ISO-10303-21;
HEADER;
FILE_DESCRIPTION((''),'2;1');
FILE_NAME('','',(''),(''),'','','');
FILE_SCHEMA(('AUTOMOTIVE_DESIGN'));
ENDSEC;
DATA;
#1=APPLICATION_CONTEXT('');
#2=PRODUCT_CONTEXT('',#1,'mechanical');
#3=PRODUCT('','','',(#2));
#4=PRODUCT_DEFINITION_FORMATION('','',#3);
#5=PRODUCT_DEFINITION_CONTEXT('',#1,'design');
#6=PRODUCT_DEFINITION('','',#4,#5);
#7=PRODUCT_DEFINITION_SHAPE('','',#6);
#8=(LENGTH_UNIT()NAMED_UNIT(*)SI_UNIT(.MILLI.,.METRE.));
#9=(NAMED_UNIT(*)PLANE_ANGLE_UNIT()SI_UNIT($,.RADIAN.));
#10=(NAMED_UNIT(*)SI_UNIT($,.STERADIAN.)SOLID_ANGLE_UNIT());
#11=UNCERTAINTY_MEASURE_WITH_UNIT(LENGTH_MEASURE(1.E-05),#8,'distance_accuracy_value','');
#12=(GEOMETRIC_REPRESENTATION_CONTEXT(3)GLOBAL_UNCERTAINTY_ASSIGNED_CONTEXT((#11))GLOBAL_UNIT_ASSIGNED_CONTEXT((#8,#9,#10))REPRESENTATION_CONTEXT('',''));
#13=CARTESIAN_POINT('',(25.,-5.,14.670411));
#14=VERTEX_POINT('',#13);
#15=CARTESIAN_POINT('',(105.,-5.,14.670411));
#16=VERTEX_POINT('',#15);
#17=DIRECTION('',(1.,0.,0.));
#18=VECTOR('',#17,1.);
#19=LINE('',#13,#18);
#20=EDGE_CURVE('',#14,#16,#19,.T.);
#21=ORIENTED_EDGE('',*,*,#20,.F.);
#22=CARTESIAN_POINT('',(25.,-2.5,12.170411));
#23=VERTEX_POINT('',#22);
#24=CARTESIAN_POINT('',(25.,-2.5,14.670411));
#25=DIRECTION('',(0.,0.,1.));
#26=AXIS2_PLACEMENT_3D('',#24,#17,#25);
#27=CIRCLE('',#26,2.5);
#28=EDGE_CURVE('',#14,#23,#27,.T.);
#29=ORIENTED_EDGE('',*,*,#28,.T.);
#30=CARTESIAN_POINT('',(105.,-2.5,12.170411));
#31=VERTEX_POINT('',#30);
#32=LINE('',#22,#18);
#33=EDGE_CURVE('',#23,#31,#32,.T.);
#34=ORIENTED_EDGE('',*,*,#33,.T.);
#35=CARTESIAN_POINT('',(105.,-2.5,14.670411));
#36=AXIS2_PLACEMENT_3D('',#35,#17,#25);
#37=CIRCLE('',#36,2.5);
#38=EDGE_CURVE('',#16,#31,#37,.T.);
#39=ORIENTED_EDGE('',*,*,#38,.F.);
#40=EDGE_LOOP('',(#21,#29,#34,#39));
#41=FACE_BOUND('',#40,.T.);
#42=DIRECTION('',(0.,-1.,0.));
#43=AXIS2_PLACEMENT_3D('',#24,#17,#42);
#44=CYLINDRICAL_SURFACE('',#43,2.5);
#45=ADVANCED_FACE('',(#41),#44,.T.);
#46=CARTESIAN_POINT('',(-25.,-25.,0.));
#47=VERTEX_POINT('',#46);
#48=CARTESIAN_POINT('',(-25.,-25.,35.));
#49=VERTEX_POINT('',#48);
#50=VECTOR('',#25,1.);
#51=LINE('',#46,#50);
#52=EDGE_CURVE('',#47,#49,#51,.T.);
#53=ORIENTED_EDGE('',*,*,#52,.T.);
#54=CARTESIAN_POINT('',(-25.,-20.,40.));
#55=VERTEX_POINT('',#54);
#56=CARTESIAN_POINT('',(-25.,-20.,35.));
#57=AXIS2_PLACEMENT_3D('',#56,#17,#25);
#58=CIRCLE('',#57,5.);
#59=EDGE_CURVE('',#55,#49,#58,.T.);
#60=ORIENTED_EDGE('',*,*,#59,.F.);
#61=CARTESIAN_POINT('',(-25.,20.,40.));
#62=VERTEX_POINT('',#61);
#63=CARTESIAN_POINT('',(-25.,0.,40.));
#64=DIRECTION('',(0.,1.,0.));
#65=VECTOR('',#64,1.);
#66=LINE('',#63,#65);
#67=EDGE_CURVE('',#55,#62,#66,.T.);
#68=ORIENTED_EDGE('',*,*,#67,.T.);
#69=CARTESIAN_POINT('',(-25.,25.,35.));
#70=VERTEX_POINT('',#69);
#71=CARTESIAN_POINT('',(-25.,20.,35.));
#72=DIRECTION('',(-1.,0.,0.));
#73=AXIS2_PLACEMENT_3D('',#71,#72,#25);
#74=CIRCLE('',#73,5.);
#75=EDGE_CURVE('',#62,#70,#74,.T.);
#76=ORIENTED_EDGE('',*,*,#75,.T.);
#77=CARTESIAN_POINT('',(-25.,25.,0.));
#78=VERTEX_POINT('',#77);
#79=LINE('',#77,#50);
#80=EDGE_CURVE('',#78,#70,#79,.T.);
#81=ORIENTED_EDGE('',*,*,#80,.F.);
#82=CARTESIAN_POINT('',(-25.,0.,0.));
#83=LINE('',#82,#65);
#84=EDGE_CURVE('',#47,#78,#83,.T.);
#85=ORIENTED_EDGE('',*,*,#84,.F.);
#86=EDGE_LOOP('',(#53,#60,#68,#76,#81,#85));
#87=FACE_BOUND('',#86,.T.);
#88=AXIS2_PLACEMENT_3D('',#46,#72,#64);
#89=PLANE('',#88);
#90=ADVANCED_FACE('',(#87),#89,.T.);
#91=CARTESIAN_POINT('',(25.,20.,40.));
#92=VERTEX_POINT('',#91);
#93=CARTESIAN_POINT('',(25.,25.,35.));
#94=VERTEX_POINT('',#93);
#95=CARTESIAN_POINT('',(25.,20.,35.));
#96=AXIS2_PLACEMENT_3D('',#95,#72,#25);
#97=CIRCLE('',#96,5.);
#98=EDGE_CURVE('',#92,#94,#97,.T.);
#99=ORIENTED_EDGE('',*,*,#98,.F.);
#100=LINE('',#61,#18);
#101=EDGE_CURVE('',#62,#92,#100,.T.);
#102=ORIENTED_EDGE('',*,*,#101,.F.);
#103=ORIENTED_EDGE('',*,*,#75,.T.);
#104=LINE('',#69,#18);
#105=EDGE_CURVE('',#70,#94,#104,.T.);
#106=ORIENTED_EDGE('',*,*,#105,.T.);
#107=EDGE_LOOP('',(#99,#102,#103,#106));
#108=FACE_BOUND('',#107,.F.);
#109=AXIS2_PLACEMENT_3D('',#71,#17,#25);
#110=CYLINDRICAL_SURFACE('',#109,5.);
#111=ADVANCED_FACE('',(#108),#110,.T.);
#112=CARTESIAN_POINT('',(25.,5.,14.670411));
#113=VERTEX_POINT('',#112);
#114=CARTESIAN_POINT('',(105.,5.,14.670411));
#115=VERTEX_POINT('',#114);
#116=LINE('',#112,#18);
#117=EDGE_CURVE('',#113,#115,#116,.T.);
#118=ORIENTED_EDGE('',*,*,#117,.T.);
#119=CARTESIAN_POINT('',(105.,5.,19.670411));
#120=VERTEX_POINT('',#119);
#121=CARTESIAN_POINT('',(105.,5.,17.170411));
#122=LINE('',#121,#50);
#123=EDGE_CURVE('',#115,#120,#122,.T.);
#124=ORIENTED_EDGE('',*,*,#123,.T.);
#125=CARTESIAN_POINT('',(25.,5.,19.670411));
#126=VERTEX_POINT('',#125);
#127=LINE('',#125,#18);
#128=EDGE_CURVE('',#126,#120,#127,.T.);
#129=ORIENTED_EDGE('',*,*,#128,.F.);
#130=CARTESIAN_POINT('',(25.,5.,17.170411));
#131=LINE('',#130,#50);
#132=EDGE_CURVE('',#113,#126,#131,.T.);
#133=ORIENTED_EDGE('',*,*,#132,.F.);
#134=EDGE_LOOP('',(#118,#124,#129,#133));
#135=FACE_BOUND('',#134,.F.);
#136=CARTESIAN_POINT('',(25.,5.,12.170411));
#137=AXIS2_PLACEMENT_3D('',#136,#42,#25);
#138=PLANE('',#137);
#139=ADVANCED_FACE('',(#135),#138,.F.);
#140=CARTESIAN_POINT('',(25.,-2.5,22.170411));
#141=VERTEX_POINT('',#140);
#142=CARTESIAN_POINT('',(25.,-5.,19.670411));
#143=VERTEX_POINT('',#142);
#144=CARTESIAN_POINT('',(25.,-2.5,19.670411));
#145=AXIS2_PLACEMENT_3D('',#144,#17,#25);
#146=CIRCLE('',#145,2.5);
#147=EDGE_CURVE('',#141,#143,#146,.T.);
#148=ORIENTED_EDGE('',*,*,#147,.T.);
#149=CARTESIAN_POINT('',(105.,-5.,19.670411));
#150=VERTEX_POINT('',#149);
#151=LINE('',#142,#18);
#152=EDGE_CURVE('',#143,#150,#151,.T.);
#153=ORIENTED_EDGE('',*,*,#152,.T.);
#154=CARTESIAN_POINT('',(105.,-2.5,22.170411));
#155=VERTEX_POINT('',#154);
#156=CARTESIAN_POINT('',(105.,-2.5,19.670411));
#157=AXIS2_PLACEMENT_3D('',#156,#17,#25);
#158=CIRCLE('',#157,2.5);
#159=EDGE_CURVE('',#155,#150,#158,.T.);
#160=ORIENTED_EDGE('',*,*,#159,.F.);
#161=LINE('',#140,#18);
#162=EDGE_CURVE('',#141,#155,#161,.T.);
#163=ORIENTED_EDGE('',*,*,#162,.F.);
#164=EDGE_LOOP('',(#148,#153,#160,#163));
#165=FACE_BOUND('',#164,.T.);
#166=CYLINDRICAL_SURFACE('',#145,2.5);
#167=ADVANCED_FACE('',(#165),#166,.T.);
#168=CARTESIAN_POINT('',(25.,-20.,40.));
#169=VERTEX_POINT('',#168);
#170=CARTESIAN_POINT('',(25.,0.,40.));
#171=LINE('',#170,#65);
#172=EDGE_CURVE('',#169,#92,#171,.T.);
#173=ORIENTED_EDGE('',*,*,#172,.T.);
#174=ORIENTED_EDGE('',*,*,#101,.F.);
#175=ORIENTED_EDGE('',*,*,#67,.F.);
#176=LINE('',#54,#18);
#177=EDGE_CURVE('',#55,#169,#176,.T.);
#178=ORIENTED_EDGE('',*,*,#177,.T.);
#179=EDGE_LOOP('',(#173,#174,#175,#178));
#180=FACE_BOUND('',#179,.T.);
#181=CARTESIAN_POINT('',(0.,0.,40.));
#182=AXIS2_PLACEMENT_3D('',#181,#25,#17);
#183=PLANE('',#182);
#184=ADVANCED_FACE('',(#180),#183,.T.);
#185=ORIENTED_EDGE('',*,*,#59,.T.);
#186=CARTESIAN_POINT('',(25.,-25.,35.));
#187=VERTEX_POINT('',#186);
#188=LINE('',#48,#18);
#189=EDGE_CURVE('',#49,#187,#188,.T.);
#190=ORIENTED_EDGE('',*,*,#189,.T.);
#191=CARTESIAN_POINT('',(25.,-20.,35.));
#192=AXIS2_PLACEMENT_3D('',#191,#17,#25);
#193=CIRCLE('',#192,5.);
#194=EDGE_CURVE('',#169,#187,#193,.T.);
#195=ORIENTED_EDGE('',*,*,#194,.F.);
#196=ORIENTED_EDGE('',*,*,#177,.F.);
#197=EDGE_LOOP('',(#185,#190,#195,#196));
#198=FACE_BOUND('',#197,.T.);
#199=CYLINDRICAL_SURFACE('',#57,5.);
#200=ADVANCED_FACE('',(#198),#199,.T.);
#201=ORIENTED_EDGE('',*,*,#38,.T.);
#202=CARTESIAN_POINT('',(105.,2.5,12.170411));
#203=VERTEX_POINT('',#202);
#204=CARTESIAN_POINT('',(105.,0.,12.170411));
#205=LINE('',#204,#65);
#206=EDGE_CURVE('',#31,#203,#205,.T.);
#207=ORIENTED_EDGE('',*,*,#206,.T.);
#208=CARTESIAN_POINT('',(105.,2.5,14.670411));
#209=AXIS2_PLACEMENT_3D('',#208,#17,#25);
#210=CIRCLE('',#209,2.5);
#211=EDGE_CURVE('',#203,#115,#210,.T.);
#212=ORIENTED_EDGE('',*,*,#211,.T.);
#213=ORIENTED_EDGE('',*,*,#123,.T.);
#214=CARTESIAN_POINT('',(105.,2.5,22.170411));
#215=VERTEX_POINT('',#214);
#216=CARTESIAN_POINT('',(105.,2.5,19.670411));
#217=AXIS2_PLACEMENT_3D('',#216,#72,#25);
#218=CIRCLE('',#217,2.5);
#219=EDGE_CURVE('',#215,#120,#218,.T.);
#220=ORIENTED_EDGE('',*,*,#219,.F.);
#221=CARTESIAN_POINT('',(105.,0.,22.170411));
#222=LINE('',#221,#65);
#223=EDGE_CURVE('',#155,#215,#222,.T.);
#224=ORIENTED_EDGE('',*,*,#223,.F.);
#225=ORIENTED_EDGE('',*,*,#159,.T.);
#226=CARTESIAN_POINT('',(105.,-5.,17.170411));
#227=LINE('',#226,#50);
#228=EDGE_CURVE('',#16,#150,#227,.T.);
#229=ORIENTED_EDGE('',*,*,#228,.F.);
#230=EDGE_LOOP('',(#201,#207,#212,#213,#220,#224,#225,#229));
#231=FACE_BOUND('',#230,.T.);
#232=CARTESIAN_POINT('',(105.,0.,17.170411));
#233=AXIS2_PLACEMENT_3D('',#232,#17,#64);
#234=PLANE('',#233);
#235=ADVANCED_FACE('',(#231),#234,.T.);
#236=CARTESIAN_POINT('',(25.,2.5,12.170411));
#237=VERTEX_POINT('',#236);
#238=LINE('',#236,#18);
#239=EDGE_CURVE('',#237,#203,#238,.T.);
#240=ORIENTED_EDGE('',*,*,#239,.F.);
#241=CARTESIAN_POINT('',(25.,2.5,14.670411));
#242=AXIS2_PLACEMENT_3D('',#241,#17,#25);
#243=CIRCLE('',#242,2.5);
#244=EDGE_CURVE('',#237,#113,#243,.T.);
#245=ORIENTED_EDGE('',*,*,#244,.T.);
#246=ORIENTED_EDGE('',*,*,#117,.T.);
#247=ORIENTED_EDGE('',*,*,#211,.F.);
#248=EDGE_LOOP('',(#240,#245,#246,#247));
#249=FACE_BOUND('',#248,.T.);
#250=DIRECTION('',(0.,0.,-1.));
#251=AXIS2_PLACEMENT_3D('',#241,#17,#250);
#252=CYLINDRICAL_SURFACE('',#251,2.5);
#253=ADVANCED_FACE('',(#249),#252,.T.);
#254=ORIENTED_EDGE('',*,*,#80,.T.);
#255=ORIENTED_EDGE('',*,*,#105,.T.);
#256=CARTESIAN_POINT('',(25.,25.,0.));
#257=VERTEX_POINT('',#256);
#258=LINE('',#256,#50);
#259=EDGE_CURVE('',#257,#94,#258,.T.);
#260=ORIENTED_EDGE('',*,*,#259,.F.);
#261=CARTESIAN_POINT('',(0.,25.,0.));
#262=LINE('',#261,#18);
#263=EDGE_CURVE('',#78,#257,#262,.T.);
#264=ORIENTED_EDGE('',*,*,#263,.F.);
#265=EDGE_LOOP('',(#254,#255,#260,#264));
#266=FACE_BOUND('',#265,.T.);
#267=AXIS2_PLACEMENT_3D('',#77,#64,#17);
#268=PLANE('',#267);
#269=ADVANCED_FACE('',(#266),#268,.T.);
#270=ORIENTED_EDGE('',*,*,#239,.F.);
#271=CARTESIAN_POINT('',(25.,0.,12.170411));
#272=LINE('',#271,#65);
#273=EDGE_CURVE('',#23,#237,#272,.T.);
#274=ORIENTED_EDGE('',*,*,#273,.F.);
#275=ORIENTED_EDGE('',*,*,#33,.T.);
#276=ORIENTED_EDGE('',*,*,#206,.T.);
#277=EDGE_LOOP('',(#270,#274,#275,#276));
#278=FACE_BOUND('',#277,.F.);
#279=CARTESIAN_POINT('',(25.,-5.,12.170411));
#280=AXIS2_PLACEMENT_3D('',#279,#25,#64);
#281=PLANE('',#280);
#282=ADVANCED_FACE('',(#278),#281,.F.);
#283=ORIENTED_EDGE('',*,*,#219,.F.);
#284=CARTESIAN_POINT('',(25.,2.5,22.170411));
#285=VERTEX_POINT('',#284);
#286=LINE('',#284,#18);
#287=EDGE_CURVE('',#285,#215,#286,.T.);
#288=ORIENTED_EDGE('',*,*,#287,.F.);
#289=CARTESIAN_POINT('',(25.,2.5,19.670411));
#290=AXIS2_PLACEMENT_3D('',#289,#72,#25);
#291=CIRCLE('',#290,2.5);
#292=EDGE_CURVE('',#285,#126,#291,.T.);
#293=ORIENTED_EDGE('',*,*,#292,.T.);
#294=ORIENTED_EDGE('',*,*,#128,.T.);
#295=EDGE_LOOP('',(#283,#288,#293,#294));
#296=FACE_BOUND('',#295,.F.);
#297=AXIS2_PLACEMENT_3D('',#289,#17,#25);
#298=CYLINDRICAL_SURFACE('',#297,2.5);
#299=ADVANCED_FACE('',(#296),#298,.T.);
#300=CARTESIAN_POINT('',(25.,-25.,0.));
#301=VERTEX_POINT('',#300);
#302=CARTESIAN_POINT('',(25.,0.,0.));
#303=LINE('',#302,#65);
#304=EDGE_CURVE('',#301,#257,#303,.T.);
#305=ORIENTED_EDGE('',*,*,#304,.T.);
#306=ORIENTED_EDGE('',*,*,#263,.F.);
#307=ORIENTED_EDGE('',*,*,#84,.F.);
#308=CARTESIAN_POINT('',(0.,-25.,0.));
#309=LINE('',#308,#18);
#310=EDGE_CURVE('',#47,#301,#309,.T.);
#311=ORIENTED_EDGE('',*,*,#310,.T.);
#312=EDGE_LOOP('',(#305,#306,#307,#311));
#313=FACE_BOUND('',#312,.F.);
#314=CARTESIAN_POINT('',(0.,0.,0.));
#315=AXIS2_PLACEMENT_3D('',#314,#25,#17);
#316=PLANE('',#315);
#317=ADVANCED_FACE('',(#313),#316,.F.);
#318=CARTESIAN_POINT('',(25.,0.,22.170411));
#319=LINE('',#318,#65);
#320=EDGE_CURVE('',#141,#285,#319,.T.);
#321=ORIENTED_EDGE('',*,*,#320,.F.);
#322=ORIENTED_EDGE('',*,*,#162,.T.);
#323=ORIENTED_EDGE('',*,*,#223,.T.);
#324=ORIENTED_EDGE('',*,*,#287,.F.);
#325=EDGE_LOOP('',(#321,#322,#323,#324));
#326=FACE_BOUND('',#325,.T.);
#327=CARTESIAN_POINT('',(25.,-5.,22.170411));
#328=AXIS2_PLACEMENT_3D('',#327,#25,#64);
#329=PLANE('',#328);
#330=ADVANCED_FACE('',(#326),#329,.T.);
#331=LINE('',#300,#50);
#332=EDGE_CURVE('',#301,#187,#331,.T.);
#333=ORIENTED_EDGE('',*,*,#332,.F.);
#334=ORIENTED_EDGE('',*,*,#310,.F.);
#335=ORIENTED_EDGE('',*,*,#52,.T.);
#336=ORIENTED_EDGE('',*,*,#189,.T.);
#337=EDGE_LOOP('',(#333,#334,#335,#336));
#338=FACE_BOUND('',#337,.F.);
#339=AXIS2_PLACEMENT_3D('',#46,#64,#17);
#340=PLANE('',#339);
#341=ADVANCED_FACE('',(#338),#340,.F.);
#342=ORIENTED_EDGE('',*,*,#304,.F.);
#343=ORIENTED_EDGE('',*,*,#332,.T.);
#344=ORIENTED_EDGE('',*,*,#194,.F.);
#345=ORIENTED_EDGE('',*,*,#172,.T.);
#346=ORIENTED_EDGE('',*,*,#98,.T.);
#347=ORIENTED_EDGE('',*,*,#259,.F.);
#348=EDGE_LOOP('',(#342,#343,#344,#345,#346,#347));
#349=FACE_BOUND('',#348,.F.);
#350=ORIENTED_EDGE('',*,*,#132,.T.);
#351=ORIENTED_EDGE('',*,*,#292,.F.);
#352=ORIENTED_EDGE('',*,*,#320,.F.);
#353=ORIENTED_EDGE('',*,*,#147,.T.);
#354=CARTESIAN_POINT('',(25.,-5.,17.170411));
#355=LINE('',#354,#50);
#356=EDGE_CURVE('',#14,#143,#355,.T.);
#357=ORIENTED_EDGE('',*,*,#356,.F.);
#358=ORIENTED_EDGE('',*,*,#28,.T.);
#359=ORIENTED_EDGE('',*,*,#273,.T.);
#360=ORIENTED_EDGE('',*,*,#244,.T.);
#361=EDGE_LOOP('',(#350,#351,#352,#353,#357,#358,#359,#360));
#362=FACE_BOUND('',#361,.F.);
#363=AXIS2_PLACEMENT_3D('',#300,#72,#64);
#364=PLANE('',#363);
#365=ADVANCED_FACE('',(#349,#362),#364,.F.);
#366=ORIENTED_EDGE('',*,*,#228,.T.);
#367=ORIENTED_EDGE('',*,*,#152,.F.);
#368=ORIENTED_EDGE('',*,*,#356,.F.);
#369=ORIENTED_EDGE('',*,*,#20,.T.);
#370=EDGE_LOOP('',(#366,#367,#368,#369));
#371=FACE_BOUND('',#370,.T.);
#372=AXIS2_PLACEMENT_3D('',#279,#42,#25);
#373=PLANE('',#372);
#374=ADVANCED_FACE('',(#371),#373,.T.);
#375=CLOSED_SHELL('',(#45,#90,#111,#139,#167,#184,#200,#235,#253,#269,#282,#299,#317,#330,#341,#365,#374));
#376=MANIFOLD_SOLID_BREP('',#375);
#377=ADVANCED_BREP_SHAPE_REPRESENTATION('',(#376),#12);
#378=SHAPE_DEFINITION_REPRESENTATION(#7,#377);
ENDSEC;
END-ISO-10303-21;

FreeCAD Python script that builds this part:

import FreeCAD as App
import Part
import Sketcher
from FreeCAD import Vector
Q = App.Units.Quantity


def edges_at(feature, points):
    """Names of the edges that pass closest to the given points."""
    edges = feature.Shape.Edges
    near = lambda p: min(range(len(edges)), key=lambda i: edges[i].distToShape(Part.Vertex(*p))[0])
    return sorted({f"Edge{near(p) + 1}" for p in points})

doc = App.newDocument("Part")
body = doc.addObject("PartDesign::Body", "Body")

sketch1 = body.newObject("Sketcher::SketchObject", "Sketch")
sketch1.AttachmentSupport = (doc.getObject("XY_Plane"), [""])
sketch1.MapMode = "FlatFace"
sketch1.addGeometry([
    Part.LineSegment(Vector(-25, 25, 0), Vector(-25, -25, 0)),
    Part.LineSegment(Vector(-25, -25, 0), Vector(25, -25, 0)),
    Part.LineSegment(Vector(25, -25, 0), Vector(25, 25, 0)),
    Part.LineSegment(Vector(25, 25, 0), Vector(-25, 25, 0)),
], False)
sketch1.addConstraint([
    Sketcher.Constraint("Coincident", 0, 2, 1, 1),
    Sketcher.Constraint("Coincident", 1, 2, 2, 1),
    Sketcher.Constraint("Coincident", 2, 2, 3, 1),
    Sketcher.Constraint("Coincident", 3, 2, 0, 1),
    Sketcher.Constraint("Vertical", 0),
    Sketcher.Constraint("Horizontal", 1),
    Sketcher.Constraint("Vertical", 2),
    Sketcher.Constraint("Horizontal", 3),
    Sketcher.Constraint("Symmetric", 0, 2, 2, 2, -1, 1),
    Sketcher.Constraint("Equal", 3, 0),
    Sketcher.Constraint("DistanceX", 1, 1, 1, 2, Q("50 mm")),
])
pad1 = body.newObject("PartDesign::Pad", "Pad")
pad1.Profile = sketch1
pad1.Length = 40

sketch2 = body.newObject("Sketcher::SketchObject", "Sketch001")
sketch2.AttachmentSupport = (doc.getObject("YZ_Plane"), [""])
sketch2.MapMode = "FlatFace"
sketch2.AttachmentOffset = App.Placement(Vector(0, 0, 25), App.Rotation())
sketch2.addGeometry([
    Part.LineSegment(Vector(-5, 22, 0), Vector(-5, 12, 0)),
    Part.LineSegment(Vector(-5, 12, 0), Vector(5, 12, 0)),
    Part.LineSegment(Vector(5, 12, 0), Vector(5, 22, 0)),
    Part.LineSegment(Vector(5, 22, 0), Vector(-5, 22, 0)),
], False)
sketch2.addConstraint([
    Sketcher.Constraint("Coincident", 0, 2, 1, 1),
    Sketcher.Constraint("Coincident", 1, 2, 2, 1),
    Sketcher.Constraint("Coincident", 2, 2, 3, 1),
    Sketcher.Constraint("Coincident", 3, 2, 0, 1),
    Sketcher.Constraint("Vertical", 0),
    Sketcher.Constraint("Horizontal", 1),
    Sketcher.Constraint("Vertical", 2),
    Sketcher.Constraint("Horizontal", 3),
    Sketcher.Constraint("Equal", 3, 0),
    Sketcher.Constraint("DistanceX", 1, 1, 1, 2, Q("10 mm")),
    Sketcher.Constraint("DistanceX", 0, 2, -1, 1, Q("5 mm")),
    Sketcher.Constraint("DistanceY", -1, 1, 0, 2, Q("12.170411 mm")),
])
pad2 = body.newObject("PartDesign::Pad", "Pad001")
pad2.Profile = sketch2
pad2.Length = 80
doc.recompute()

fillet = body.newObject("PartDesign::Fillet", "Fillet")
fillet.Base = (pad2, edges_at(pad2, [(65, 5, 22.17)]))
fillet.Radius = 2.5
doc.recompute()

fillet2 = body.newObject("PartDesign::Fillet", "Fillet001")
fillet2.Base = (fillet, edges_at(fillet, [(65, -5, 22.17)]))
fillet2.Radius = 2.5
doc.recompute()

fillet3 = body.newObject("PartDesign::Fillet", "Fillet002")
fillet3.Base = (fillet2, edges_at(fillet2, [(65, -5, 12.17)]))
fillet3.Radius = 2.5
doc.recompute()

fillet4 = body.newObject("PartDesign::Fillet", "Fillet003")
fillet4.Base = (fillet3, edges_at(fillet3, [(65, 5, 12.17)]))
fillet4.Radius = 2.5
doc.recompute()

fillet5 = body.newObject("PartDesign::Fillet", "Fillet004")
fillet5.Base = (fillet4, edges_at(fillet4, [(0, 25, 40)]))
fillet5.Radius = 5
doc.recompute()

fillet6 = body.newObject("PartDesign::Fillet", "Fillet005")
fillet6.Base = (fillet5, edges_at(fillet5, [(0, -25, 40)]))
fillet6.Radius = 5

doc.recompute()
